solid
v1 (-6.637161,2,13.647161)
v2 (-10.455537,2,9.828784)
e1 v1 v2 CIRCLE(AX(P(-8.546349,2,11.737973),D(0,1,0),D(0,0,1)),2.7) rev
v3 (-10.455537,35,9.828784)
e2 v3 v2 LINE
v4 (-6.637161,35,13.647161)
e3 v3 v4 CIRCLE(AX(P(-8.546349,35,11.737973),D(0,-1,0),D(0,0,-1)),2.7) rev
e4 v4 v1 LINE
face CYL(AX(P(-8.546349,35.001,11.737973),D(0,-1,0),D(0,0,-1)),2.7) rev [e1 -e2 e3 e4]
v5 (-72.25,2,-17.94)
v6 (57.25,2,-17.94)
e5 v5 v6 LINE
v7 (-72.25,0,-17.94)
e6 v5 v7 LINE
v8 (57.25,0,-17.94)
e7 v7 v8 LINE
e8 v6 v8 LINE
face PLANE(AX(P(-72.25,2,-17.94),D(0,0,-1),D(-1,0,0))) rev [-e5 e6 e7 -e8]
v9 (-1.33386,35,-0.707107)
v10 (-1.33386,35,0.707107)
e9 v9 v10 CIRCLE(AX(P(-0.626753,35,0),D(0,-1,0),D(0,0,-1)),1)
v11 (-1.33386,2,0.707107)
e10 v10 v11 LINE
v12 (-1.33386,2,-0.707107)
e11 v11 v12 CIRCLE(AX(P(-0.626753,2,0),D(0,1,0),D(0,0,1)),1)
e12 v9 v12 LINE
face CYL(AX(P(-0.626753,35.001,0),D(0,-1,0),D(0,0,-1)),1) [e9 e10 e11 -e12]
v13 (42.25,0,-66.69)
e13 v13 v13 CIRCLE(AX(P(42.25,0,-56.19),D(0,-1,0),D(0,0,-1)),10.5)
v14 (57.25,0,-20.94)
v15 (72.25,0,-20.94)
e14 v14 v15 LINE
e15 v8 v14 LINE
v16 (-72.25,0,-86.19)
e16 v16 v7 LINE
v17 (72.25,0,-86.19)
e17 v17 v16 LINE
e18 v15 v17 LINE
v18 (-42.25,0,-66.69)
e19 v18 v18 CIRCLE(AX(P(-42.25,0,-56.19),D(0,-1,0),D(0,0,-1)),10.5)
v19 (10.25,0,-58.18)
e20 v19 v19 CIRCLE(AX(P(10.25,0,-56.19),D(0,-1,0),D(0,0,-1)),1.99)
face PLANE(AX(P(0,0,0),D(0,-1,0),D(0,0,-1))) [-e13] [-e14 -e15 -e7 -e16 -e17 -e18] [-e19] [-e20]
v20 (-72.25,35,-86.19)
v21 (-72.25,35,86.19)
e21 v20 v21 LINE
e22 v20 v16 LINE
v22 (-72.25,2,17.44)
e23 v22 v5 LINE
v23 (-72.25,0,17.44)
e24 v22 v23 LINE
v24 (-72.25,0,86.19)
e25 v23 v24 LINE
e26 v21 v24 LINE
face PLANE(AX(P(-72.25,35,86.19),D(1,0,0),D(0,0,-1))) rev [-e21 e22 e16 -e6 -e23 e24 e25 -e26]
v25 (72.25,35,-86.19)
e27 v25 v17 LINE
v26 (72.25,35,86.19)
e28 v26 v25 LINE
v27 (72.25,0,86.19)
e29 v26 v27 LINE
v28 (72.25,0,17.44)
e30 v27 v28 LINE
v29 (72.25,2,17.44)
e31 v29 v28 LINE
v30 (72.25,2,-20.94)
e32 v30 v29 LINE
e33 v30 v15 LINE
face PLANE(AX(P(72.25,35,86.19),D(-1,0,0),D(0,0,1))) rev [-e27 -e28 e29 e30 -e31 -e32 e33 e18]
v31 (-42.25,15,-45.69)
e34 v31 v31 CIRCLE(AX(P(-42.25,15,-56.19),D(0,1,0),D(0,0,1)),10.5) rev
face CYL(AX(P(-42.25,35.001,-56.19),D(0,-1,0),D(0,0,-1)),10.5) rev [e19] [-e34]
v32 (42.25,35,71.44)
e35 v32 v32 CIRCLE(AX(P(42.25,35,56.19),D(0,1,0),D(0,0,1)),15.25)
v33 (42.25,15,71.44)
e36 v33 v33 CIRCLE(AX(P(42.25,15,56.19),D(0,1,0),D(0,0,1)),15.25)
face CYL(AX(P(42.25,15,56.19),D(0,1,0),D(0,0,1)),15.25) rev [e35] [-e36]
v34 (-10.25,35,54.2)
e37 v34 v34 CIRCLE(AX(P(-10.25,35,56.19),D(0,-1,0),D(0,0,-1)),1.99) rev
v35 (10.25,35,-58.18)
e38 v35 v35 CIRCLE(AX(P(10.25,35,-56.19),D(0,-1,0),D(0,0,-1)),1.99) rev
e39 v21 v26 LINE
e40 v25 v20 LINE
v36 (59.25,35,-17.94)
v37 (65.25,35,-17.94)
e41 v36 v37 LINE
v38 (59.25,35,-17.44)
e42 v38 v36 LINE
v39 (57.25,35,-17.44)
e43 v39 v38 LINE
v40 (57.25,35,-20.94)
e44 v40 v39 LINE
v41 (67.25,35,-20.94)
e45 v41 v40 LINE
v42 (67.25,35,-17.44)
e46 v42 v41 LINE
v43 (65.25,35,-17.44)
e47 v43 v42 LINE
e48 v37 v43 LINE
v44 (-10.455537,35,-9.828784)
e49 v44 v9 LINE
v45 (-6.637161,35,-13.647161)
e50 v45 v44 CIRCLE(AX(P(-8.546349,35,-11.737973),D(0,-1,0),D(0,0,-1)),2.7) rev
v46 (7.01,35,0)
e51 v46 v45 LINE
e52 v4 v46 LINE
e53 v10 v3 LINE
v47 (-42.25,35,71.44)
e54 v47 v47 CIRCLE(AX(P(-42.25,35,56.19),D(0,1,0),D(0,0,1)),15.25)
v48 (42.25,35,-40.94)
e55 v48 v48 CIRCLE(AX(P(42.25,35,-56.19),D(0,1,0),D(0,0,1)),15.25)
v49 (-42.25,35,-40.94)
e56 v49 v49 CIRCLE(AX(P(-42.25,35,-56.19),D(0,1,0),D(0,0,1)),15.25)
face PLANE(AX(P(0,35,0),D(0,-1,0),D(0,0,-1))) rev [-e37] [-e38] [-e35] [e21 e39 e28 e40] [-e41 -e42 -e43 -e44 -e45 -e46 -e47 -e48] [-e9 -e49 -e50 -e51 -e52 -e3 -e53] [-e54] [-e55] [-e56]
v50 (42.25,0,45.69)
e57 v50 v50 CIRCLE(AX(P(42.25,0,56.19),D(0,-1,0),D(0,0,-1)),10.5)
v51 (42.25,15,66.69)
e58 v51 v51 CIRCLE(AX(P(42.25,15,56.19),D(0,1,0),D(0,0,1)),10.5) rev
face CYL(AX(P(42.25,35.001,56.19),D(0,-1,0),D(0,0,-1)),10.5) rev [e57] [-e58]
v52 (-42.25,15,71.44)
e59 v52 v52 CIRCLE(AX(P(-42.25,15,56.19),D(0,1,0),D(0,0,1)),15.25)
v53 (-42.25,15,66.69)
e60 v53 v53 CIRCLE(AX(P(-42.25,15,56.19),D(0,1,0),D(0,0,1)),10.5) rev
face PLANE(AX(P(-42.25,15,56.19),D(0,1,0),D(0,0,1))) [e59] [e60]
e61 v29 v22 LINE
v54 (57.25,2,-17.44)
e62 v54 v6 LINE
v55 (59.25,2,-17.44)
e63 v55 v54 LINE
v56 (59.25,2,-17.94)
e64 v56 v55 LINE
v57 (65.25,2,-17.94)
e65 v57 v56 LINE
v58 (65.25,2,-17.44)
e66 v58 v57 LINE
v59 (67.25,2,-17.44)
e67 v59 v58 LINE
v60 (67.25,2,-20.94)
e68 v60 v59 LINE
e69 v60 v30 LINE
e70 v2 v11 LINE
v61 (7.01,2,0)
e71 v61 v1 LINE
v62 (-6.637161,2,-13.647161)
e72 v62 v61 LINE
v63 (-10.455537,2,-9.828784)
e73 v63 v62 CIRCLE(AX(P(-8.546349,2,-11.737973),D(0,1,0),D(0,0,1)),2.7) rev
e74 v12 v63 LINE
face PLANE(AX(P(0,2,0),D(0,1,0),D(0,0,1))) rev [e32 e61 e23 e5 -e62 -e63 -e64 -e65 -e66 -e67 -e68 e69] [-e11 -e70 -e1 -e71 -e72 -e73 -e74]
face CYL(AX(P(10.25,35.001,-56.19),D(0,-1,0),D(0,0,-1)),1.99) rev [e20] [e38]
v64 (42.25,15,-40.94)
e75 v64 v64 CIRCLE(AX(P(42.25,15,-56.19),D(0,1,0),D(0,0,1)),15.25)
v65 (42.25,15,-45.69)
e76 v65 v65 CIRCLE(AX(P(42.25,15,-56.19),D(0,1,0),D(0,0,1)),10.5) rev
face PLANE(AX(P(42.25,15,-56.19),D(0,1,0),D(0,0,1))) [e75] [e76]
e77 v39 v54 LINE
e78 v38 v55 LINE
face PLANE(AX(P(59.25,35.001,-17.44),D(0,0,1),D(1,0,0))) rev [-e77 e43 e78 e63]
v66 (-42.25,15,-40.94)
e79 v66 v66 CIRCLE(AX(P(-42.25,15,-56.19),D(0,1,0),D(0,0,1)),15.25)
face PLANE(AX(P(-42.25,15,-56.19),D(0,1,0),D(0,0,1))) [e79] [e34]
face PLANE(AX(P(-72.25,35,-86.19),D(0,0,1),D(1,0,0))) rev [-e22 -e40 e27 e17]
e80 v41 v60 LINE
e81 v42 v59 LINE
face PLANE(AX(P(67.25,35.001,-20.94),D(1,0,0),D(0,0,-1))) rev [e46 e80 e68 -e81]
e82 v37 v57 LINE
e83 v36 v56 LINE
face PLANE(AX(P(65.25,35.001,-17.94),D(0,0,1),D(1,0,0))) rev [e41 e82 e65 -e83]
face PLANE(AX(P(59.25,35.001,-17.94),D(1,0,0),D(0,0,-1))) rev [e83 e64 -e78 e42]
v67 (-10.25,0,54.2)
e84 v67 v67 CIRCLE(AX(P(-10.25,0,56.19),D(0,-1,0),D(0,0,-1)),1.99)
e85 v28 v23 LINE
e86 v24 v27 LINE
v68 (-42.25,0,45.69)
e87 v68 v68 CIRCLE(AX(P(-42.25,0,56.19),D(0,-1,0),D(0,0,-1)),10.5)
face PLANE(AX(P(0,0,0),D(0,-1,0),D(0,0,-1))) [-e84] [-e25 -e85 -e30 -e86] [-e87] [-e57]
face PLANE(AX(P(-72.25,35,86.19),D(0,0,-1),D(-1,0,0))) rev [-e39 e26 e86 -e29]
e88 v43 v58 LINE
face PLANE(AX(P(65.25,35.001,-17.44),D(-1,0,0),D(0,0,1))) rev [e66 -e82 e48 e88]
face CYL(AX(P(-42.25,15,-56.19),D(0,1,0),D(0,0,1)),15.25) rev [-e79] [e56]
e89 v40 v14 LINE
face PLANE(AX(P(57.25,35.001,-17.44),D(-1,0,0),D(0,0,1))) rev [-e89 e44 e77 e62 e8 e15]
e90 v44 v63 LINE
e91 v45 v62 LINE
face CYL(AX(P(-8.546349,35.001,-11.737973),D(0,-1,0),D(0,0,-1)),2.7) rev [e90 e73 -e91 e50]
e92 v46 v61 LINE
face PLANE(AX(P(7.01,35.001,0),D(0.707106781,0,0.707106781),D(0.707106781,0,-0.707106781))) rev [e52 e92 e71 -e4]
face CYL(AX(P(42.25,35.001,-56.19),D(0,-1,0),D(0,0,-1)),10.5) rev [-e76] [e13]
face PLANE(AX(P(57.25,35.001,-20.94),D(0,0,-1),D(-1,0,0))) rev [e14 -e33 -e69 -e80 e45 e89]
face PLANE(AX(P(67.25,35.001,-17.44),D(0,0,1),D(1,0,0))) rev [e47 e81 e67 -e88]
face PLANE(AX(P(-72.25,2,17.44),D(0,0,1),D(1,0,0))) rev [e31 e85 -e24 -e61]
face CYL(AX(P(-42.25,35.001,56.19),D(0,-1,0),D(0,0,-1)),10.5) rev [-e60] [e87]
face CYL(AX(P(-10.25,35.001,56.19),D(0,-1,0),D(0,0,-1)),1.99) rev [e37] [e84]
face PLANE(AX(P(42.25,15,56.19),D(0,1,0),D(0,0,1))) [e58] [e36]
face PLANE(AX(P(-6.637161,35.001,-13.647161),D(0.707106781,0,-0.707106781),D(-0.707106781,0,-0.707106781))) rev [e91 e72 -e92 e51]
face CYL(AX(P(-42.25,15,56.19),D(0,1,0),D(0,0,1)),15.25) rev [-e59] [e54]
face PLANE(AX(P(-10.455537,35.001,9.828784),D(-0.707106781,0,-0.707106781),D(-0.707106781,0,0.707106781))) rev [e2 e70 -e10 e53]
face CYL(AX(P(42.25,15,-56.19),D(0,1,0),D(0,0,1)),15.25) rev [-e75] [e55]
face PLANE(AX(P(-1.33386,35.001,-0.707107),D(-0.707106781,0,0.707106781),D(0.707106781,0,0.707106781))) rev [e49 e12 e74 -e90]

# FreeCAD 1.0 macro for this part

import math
import FreeCAD as App
import Part
import Sketcher
Q = App.Units.Quantity


def add_polygon(sketch, points):
    """Adds a closed chain of lines whose ends are joined by coincident constraints."""
    first, n = sketch.GeometryCount, len(points)
    for a, b in zip(points, points[1:] + points[:1]):
        sketch.addGeometry(Part.LineSegment(App.Vector(*a, 0), App.Vector(*b, 0)), False)
    for i in range(n):
        sketch.addConstraint(Sketcher.Constraint("Coincident", first + i, 2, first + (i + 1) % n, 1))

doc = App.newDocument("Part")
params = doc.addObject("Spreadsheet::Sheet", "Params")
for row, (alias, value) in enumerate([
    ("sketch1_width", "144.5 mm"),
    ("sketch1_height", "172.38 mm"),
    ("pad1_length", "35 mm"),
    ("sketch2_diameter", "3.98 mm"),
    ("sketch3_diameter", "21 mm"),
    ("sketch4_diameter", "21 mm"),
    ("sketch5_diameter", "21 mm"),
    ("sketch6_diameter", "3.98 mm"),
    ("sketch7_diameter", "21 mm"),
    ("sketch8_width", "10 mm"),
    ("sketch8_width2", "2 mm"),
    ("sketch8_height", "3.5 mm"),
    ("sketch8_height2", "0.5 mm"),
    ("sketch9_radius", "1 mm"),
    ("sketch9_radius2", "2.7 mm"),
    ("sketch9_length", "12.9 mm"),
    ("sketch9_length2", "19.3 mm"),
    ("sketch10_width", "15 mm"),
    ("sketch10_height", "3 mm"),
    ("sketch10_width2", "129.5 mm"),
    ("sketch10_height2", "35.38 mm"),
    ("pocket9_length", "2 mm"),
    ("sketch11_diameter", "30.5 mm"),
    ("pocket10_length", "20 mm"),
], start=1):
    params.set(f"A{row}", alias)
    params.set(f"B{row}", "=" + value)
    params.setAlias(f"B{row}", alias)

body = doc.addObject("PartDesign::Body", "Body")

# Sketch on XZ plane
sketch1 = body.newObject("Sketcher::SketchObject", "Sketch")
sketch1.AttachmentSupport = (doc.getObject("XZ_Plane"), [""])
sketch1.MapMode = "FlatFace"
add_polygon(sketch1, [(-72.25, -86.19), (-72.25, 86.19), (72.25, 86.19), (72.25, -86.19)])  # lines 0-3
sketch1.addConstraint(Sketcher.Constraint("Vertical", 0))
sketch1.addConstraint(Sketcher.Constraint("Horizontal", 1))
sketch1.addConstraint(Sketcher.Constraint("Vertical", 2))
sketch1.addConstraint(Sketcher.Constraint("Horizontal", 3))
sketch1.addConstraint(Sketcher.Constraint("Symmetric", 0, 2, 2, 2, -1, 1))
sketch1.addConstraint(Sketcher.Constraint("DistanceX", 1, 1, 1, 2, Q("144.5 mm")))
sketch1.addConstraint(Sketcher.Constraint("DistanceY", 0, 1, 0, 2, Q("172.38 mm")))
sketch1.setExpression("Constraints[9]", "Params.sketch1_width")
sketch1.setExpression("Constraints[10]", "Params.sketch1_height")
pad1 = body.newObject("PartDesign::Pad", "Pad")
pad1.Profile = sketch1
pad1.setExpression("Length", "Params.pad1_length")
pad1.Reversed = True

# Sketch on XZ plane
sketch2 = body.newObject("Sketcher::SketchObject", "Sketch001")
sketch2.AttachmentSupport = (doc.getObject("XZ_Plane"), [""])
sketch2.MapMode = "FlatFace"
sketch2.addGeometry(Part.Circle(App.Vector(10.25, -56.19, 0), App.Vector(0, 0, 1), 1.99), False)
sketch2.addConstraint(Sketcher.Constraint("Diameter", 0, Q("3.98 mm")))
sketch2.addConstraint(Sketcher.Constraint("DistanceX", -1, 1, 0, 3, Q("10.25 mm")))
sketch2.addConstraint(Sketcher.Constraint("DistanceY", 0, 3, -1, 1, Q("56.19 mm")))
sketch2.setExpression("Constraints[0]", "Params.sketch2_diameter")
pocket1 = body.newObject("PartDesign::Pocket", "Pocket")
pocket1.Profile = sketch2
pocket1.Type = "UpToFirst"

# Sketch on XZ plane
sketch3 = body.newObject("Sketcher::SketchObject", "Sketch002")
sketch3.AttachmentSupport = (doc.getObject("XZ_Plane"), [""])
sketch3.MapMode = "FlatFace"
sketch3.addGeometry(Part.Circle(App.Vector(-42.25, -56.19, 0), App.Vector(0, 0, 1), 10.5), False)
sketch3.addConstraint(Sketcher.Constraint("Diameter", 0, Q("21 mm")))
sketch3.addConstraint(Sketcher.Constraint("DistanceX", 0, 3, -1, 1, Q("42.25 mm")))
sketch3.addConstraint(Sketcher.Constraint("DistanceY", 0, 3, -1, 1, Q("56.19 mm")))
sketch3.setExpression("Constraints[0]", "Params.sketch3_diameter")
pocket2 = body.newObject("PartDesign::Pocket", "Pocket001")
pocket2.Profile = sketch3
pocket2.Type = "UpToFirst"

# Sketch on XZ plane
sketch4 = body.newObject("Sketcher::SketchObject", "Sketch003")
sketch4.AttachmentSupport = (doc.getObject("XZ_Plane"), [""])
sketch4.MapMode = "FlatFace"
sketch4.addGeometry(Part.Circle(App.Vector(42.25, -56.19, 0), App.Vector(0, 0, 1), 10.5), False)
sketch4.addConstraint(Sketcher.Constraint("Diameter", 0, Q("21 mm")))
sketch4.addConstraint(Sketcher.Constraint("DistanceX", -1, 1, 0, 3, Q("42.25 mm")))
sketch4.addConstraint(Sketcher.Constraint("DistanceY", 0, 3, -1, 1, Q("56.19 mm")))
sketch4.setExpression("Constraints[0]", "Params.sketch4_diameter")
pocket3 = body.newObject("PartDesign::Pocket", "Pocket002")
pocket3.Profile = sketch4
pocket3.Type = "UpToFirst"

# Sketch on XZ plane
sketch5 = body.newObject("Sketcher::SketchObject", "Sketch004")
sketch5.AttachmentSupport = (doc.getObject("XZ_Plane"), [""])
sketch5.MapMode = "FlatFace"
sketch5.addGeometry(Part.Circle(App.Vector(-42.25, 56.19, 0), App.Vector(0, 0, 1), 10.5), False)
sketch5.addConstraint(Sketcher.Constraint("Diameter", 0, Q("21 mm")))
sketch5.addConstraint(Sketcher.Constraint("DistanceX", 0, 3, -1, 1, Q("42.25 mm")))
sketch5.addConstraint(Sketcher.Constraint("DistanceY", -1, 1, 0, 3, Q("56.19 mm")))
sketch5.setExpression("Constraints[0]", "Params.sketch5_diameter")
pocket4 = body.newObject("PartDesign::Pocket", "Pocket003")
pocket4.Profile = sketch5
pocket4.Type = "UpToFirst"

# Sketch on XZ plane
sketch6 = body.newObject("Sketcher::SketchObject", "Sketch005")
sketch6.AttachmentSupport = (doc.getObject("XZ_Plane"), [""])
sketch6.MapMode = "FlatFace"
sketch6.addGeometry(Part.Circle(App.Vector(-10.25, 56.19, 0), App.Vector(0, 0, 1), 1.99), False)
sketch6.addConstraint(Sketcher.Constraint("Diameter", 0, Q("3.98 mm")))
sketch6.addConstraint(Sketcher.Constraint("DistanceX", 0, 3, -1, 1, Q("10.25 mm")))
sketch6.addConstraint(Sketcher.Constraint("DistanceY", -1, 1, 0, 3, Q("56.19 mm")))
sketch6.setExpression("Constraints[0]", "Params.sketch6_diameter")
pocket5 = body.newObject("PartDesign::Pocket", "Pocket004")
pocket5.Profile = sketch6
pocket5.Type = "UpToFirst"

# Sketch on XZ plane
sketch7 = body.newObject("Sketcher::SketchObject", "Sketch006")
sketch7.AttachmentSupport = (doc.getObject("XZ_Plane"), [""])
sketch7.MapMode = "FlatFace"
sketch7.addGeometry(Part.Circle(App.Vector(42.25, 56.19, 0), App.Vector(0, 0, 1), 10.5), False)
sketch7.addConstraint(Sketcher.Constraint("Diameter", 0, Q("21 mm")))
sketch7.addConstraint(Sketcher.Constraint("DistanceX", -1, 1, 0, 3, Q("42.25 mm")))
sketch7.addConstraint(Sketcher.Constraint("DistanceY", -1, 1, 0, 3, Q("56.19 mm")))
sketch7.setExpression("Constraints[0]", "Params.sketch7_diameter")
pocket6 = body.newObject("PartDesign::Pocket", "Pocket005")
pocket6.Profile = sketch7
pocket6.Type = "UpToFirst"

# Sketch on XZ plane
sketch8 = body.newObject("Sketcher::SketchObject", "Sketch007")
sketch8.AttachmentSupport = (doc.getObject("XZ_Plane"), [""])
sketch8.MapMode = "FlatFace"
add_polygon(sketch8, [(57.25, -20.94), (67.25, -20.94), (67.25, -17.44), (65.25, -17.44), (65.25, -17.94), (59.25, -17.94), (59.25, -17.44), (57.25, -17.44)])  # lines 0-7
sketch8.addConstraint(Sketcher.Constraint("Horizontal", 0))
sketch8.addConstraint(Sketcher.Constraint("Vertical", 1))
sketch8.addConstraint(Sketcher.Constraint("Horizontal", 2))
sketch8.addConstraint(Sketcher.Constraint("Vertical", 3))
sketch8.addConstraint(Sketcher.Constraint("Horizontal", 4))
sketch8.addConstraint(Sketcher.Constraint("Vertical", 5))
sketch8.addConstraint(Sketcher.Constraint("Horizontal", 6))
sketch8.addConstraint(Sketcher.Constraint("Vertical", 7))
sketch8.addConstraint(Sketcher.Constraint("Horizontal", 2, 2, 5, 2))
sketch8.addConstraint(Sketcher.Constraint("Equal", 2, 6))
sketch8.addConstraint(Sketcher.Constraint("DistanceX", 0, 1, 0, 2, Q("10 mm")))
sketch8.addConstraint(Sketcher.Constraint("DistanceX", 2, 2, 2, 1, Q("2 mm")))
sketch8.addConstraint(Sketcher.Constraint("DistanceY", 1, 1, 1, 2, Q("3.5 mm")))
sketch8.addConstraint(Sketcher.Constraint("DistanceY", 3, 2, 3, 1, Q("0.5 mm")))
sketch8.addConstraint(Sketcher.Constraint("DistanceX", -1, 1, 0, 2, Q("67.25 mm")))
sketch8.addConstraint(Sketcher.Constraint("DistanceY", 0, 2, -1, 1, Q("20.94 mm")))
sketch8.setExpression("Constraints[18]", "Params.sketch8_width")
sketch8.setExpression("Constraints[19]", "Params.sketch8_width2")
sketch8.setExpression("Constraints[20]", "Params.sketch8_height")
sketch8.setExpression("Constraints[21]", "Params.sketch8_height2")
pocket7 = body.newObject("PartDesign::Pocket", "Pocket006")
pocket7.Profile = sketch8
pocket7.Type = "UpToFirst"

# Sketch on XZ plane
sketch9 = body.newObject("Sketcher::SketchObject", "Sketch008")
sketch9.AttachmentSupport = (doc.getObject("XZ_Plane"), [""])
sketch9.MapMode = "FlatFace"
sketch9.addGeometry(Part.LineSegment(App.Vector(-1.33386, -0.707107, 0), App.Vector(-10.455537, -9.828784, 0)), False)
sketch9.addGeometry(Part.ArcOfCircle(Part.Circle(App.Vector(-8.546349, -11.737973, 0), App.Vector(0, 0, 1), 2.7), math.radians(135), math.radians(315)), False)
sketch9.addGeometry(Part.LineSegment(App.Vector(-6.637161, -13.647161, 0), App.Vector(7.01, 0, 0)), False)
sketch9.addGeometry(Part.LineSegment(App.Vector(7.01, 0, 0), App.Vector(-6.637161, 13.647161, 0)), False)
sketch9.addGeometry(Part.ArcOfCircle(Part.Circle(App.Vector(-8.546349, 11.737973, 0), App.Vector(0, 0, 1), 2.7), math.radians(45), math.radians(225)), False)
sketch9.addGeometry(Part.LineSegment(App.Vector(-10.455537, 9.828784, 0), App.Vector(-1.33386, 0.707107, 0)), False)
sketch9.addGeometry(Part.ArcOfCircle(Part.Circle(App.Vector(-0.626753, 0, 0), App.Vector(0, 0, 1), 1), math.radians(-135), math.radians(135)), False)
sketch9.addConstraint(Sketcher.Constraint("Tangent", 0, 2, 1, 1))
sketch9.addConstraint(Sketcher.Constraint("Tangent", 1, 2, 2, 1))
sketch9.addConstraint(Sketcher.Constraint("Coincident", 2, 2, 3, 1))
sketch9.addConstraint(Sketcher.Constraint("Tangent", 3, 2, 4, 1))
sketch9.addConstraint(Sketcher.Constraint("Tangent", 4, 2, 5, 1))
sketch9.addConstraint(Sketcher.Constraint("Coincident", 5, 2, 6, 2))
sketch9.addConstraint(Sketcher.Constraint("Coincident", 6, 1, 0, 1))
sketch9.addConstraint(Sketcher.Constraint("Equal", 1, 4))
sketch9.addConstraint(Sketcher.Constraint("Symmetric", 1, 3, 4, 3, -1))
sketch9.addConstraint(Sketcher.Constraint("Symmetric", 5, 2, 6, 1, -1))
sketch9.addConstraint(Sketcher.Constraint("PointOnObject", 2, 2, -1))
sketch9.addConstraint(Sketcher.Constraint("Parallel", 0, 2))
sketch9.addConstraint(Sketcher.Constraint("Perpendicular", 2, 3))
sketch9.addConstraint(Sketcher.Constraint("Radius", 6, Q("1 mm")))
sketch9.addConstraint(Sketcher.Constraint("Radius", 1, Q("2.7 mm")))
sketch9.addConstraint(Sketcher.Constraint("Distance", 0, Q("12.9 mm")))
sketch9.addConstraint(Sketcher.Constraint("Distance", 2, Q("19.3 mm")))
sketch9.addConstraint(Sketcher.Constraint("DistanceX", -1, 1, 2, 2, Q("7.01 mm")))
sketch9.setExpression("Constraints[13]", "Params.sketch9_radius")
sketch9.setExpression("Constraints[14]", "Params.sketch9_radius2")
sketch9.setExpression("Constraints[15]", "Params.sketch9_length")
sketch9.setExpression("Constraints[16]", "Params.sketch9_length2")
pocket8 = body.newObject("PartDesign::Pocket", "Pocket007")
pocket8.Profile = sketch9
pocket8.Type = "UpToFirst"

# Sketch on XZ plane
sketch10 = body.newObject("Sketcher::SketchObject", "Sketch009")
sketch10.AttachmentSupport = (doc.getObject("XZ_Plane"), [""])
sketch10.MapMode = "FlatFace"
add_polygon(sketch10, [(-72.25, 17.44), (-72.25, -17.94), (57.25, -17.94), (57.25, -20.94), (72.25, -20.94), (72.25, 17.44)])  # lines 0-5
sketch10.addConstraint(Sketcher.Constraint("Vertical", 0))
sketch10.addConstraint(Sketcher.Constraint("Horizontal", 1))
sketch10.addConstraint(Sketcher.Constraint("Vertical", 2))
sketch10.addConstraint(Sketcher.Constraint("Horizontal", 3))
sketch10.addConstraint(Sketcher.Constraint("Vertical", 4))
sketch10.addConstraint(Sketcher.Constraint("Horizontal", 5))
sketch10.addConstraint(Sketcher.Constraint("DistanceX", 3, 1, 3, 2, Q("15 mm")))
sketch10.addConstraint(Sketcher.Constraint("DistanceY", 2, 2, 2, 1, Q("3 mm")))
sketch10.addConstraint(Sketcher.Constraint("DistanceX", 1, 1, 1, 2, Q("129.5 mm")))
sketch10.addConstraint(Sketcher.Constraint("DistanceY", 0, 2, 0, 1, Q("35.38 mm")))
sketch10.addConstraint(Sketcher.Constraint("DistanceX", 0, 2, -1, 1, Q("72.25 mm")))
sketch10.addConstraint(Sketcher.Constraint("DistanceY", 0, 2, -1, 1, Q("17.94 mm")))
sketch10.setExpression("Constraints[12]", "Params.sketch10_width")
sketch10.setExpression("Constraints[13]", "Params.sketch10_height")
sketch10.setExpression("Constraints[14]", "Params.sketch10_width2")
sketch10.setExpression("Constraints[15]", "Params.sketch10_height2")
pocket9 = body.newObject("PartDesign::Pocket", "Pocket008")
pocket9.Profile = sketch10
pocket9.setExpression("Length", "Params.pocket9_length")

# Sketch on XZ plane
sketch11 = body.newObject("Sketcher::SketchObject", "Sketch010")
sketch11.AttachmentSupport = (doc.getObject("XZ_Plane"), [""])
sketch11.MapMode = "FlatFace"
sketch11.AttachmentOffset = App.Placement(App.Vector(0, 0, -35), App.Rotation())
sketch11.addGeometry(Part.Circle(App.Vector(-42.25, -56.19, 0), App.Vector(0, 0, 1), 15.25), False)
sketch11.addGeometry(Part.Circle(App.Vector(42.25, -56.19, 0), App.Vector(0, 0, 1), 15.25), False)
sketch11.addGeometry(Part.Circle(App.Vector(42.25, 56.19, 0), App.Vector(0, 0, 1), 15.25), False)
sketch11.addGeometry(Part.Circle(App.Vector(-42.25, 56.19, 0), App.Vector(0, 0, 1), 15.25), False)
sketch11.addConstraint(Sketcher.Constraint("Equal", 0, 1))
sketch11.addConstraint(Sketcher.Constraint("Equal", 1, 2))
sketch11.addConstraint(Sketcher.Constraint("Equal", 2, 3))
sketch11.addConstraint(Sketcher.Constraint("Symmetric", 0, 3, 2, 3, -1, 1))
sketch11.addConstraint(Sketcher.Constraint("Symmetric", 1, 3, 3, 3, -1, 1))
sketch11.addConstraint(Sketcher.Constraint("Symmetric", 0, 3, 1, 3, -2))
sketch11.addConstraint(Sketcher.Constraint("Diameter", 0, Q("30.5 mm")))
sketch11.addConstraint(Sketcher.Constraint("DistanceX", 0, 3, 1, 3, Q("84.5 mm")))
sketch11.addConstraint(Sketcher.Constraint("DistanceY", 0, 3, -1, 1, Q("56.19 mm")))
sketch11.setExpression("Constraints[6]", "Params.sketch11_diameter")
pocket10 = body.newObject("PartDesign::Pocket", "Pocket009")
pocket10.Profile = sketch11
pocket10.setExpression("Length", "Params.pocket10_length")
pocket10.Reversed = True

doc.recompute()
